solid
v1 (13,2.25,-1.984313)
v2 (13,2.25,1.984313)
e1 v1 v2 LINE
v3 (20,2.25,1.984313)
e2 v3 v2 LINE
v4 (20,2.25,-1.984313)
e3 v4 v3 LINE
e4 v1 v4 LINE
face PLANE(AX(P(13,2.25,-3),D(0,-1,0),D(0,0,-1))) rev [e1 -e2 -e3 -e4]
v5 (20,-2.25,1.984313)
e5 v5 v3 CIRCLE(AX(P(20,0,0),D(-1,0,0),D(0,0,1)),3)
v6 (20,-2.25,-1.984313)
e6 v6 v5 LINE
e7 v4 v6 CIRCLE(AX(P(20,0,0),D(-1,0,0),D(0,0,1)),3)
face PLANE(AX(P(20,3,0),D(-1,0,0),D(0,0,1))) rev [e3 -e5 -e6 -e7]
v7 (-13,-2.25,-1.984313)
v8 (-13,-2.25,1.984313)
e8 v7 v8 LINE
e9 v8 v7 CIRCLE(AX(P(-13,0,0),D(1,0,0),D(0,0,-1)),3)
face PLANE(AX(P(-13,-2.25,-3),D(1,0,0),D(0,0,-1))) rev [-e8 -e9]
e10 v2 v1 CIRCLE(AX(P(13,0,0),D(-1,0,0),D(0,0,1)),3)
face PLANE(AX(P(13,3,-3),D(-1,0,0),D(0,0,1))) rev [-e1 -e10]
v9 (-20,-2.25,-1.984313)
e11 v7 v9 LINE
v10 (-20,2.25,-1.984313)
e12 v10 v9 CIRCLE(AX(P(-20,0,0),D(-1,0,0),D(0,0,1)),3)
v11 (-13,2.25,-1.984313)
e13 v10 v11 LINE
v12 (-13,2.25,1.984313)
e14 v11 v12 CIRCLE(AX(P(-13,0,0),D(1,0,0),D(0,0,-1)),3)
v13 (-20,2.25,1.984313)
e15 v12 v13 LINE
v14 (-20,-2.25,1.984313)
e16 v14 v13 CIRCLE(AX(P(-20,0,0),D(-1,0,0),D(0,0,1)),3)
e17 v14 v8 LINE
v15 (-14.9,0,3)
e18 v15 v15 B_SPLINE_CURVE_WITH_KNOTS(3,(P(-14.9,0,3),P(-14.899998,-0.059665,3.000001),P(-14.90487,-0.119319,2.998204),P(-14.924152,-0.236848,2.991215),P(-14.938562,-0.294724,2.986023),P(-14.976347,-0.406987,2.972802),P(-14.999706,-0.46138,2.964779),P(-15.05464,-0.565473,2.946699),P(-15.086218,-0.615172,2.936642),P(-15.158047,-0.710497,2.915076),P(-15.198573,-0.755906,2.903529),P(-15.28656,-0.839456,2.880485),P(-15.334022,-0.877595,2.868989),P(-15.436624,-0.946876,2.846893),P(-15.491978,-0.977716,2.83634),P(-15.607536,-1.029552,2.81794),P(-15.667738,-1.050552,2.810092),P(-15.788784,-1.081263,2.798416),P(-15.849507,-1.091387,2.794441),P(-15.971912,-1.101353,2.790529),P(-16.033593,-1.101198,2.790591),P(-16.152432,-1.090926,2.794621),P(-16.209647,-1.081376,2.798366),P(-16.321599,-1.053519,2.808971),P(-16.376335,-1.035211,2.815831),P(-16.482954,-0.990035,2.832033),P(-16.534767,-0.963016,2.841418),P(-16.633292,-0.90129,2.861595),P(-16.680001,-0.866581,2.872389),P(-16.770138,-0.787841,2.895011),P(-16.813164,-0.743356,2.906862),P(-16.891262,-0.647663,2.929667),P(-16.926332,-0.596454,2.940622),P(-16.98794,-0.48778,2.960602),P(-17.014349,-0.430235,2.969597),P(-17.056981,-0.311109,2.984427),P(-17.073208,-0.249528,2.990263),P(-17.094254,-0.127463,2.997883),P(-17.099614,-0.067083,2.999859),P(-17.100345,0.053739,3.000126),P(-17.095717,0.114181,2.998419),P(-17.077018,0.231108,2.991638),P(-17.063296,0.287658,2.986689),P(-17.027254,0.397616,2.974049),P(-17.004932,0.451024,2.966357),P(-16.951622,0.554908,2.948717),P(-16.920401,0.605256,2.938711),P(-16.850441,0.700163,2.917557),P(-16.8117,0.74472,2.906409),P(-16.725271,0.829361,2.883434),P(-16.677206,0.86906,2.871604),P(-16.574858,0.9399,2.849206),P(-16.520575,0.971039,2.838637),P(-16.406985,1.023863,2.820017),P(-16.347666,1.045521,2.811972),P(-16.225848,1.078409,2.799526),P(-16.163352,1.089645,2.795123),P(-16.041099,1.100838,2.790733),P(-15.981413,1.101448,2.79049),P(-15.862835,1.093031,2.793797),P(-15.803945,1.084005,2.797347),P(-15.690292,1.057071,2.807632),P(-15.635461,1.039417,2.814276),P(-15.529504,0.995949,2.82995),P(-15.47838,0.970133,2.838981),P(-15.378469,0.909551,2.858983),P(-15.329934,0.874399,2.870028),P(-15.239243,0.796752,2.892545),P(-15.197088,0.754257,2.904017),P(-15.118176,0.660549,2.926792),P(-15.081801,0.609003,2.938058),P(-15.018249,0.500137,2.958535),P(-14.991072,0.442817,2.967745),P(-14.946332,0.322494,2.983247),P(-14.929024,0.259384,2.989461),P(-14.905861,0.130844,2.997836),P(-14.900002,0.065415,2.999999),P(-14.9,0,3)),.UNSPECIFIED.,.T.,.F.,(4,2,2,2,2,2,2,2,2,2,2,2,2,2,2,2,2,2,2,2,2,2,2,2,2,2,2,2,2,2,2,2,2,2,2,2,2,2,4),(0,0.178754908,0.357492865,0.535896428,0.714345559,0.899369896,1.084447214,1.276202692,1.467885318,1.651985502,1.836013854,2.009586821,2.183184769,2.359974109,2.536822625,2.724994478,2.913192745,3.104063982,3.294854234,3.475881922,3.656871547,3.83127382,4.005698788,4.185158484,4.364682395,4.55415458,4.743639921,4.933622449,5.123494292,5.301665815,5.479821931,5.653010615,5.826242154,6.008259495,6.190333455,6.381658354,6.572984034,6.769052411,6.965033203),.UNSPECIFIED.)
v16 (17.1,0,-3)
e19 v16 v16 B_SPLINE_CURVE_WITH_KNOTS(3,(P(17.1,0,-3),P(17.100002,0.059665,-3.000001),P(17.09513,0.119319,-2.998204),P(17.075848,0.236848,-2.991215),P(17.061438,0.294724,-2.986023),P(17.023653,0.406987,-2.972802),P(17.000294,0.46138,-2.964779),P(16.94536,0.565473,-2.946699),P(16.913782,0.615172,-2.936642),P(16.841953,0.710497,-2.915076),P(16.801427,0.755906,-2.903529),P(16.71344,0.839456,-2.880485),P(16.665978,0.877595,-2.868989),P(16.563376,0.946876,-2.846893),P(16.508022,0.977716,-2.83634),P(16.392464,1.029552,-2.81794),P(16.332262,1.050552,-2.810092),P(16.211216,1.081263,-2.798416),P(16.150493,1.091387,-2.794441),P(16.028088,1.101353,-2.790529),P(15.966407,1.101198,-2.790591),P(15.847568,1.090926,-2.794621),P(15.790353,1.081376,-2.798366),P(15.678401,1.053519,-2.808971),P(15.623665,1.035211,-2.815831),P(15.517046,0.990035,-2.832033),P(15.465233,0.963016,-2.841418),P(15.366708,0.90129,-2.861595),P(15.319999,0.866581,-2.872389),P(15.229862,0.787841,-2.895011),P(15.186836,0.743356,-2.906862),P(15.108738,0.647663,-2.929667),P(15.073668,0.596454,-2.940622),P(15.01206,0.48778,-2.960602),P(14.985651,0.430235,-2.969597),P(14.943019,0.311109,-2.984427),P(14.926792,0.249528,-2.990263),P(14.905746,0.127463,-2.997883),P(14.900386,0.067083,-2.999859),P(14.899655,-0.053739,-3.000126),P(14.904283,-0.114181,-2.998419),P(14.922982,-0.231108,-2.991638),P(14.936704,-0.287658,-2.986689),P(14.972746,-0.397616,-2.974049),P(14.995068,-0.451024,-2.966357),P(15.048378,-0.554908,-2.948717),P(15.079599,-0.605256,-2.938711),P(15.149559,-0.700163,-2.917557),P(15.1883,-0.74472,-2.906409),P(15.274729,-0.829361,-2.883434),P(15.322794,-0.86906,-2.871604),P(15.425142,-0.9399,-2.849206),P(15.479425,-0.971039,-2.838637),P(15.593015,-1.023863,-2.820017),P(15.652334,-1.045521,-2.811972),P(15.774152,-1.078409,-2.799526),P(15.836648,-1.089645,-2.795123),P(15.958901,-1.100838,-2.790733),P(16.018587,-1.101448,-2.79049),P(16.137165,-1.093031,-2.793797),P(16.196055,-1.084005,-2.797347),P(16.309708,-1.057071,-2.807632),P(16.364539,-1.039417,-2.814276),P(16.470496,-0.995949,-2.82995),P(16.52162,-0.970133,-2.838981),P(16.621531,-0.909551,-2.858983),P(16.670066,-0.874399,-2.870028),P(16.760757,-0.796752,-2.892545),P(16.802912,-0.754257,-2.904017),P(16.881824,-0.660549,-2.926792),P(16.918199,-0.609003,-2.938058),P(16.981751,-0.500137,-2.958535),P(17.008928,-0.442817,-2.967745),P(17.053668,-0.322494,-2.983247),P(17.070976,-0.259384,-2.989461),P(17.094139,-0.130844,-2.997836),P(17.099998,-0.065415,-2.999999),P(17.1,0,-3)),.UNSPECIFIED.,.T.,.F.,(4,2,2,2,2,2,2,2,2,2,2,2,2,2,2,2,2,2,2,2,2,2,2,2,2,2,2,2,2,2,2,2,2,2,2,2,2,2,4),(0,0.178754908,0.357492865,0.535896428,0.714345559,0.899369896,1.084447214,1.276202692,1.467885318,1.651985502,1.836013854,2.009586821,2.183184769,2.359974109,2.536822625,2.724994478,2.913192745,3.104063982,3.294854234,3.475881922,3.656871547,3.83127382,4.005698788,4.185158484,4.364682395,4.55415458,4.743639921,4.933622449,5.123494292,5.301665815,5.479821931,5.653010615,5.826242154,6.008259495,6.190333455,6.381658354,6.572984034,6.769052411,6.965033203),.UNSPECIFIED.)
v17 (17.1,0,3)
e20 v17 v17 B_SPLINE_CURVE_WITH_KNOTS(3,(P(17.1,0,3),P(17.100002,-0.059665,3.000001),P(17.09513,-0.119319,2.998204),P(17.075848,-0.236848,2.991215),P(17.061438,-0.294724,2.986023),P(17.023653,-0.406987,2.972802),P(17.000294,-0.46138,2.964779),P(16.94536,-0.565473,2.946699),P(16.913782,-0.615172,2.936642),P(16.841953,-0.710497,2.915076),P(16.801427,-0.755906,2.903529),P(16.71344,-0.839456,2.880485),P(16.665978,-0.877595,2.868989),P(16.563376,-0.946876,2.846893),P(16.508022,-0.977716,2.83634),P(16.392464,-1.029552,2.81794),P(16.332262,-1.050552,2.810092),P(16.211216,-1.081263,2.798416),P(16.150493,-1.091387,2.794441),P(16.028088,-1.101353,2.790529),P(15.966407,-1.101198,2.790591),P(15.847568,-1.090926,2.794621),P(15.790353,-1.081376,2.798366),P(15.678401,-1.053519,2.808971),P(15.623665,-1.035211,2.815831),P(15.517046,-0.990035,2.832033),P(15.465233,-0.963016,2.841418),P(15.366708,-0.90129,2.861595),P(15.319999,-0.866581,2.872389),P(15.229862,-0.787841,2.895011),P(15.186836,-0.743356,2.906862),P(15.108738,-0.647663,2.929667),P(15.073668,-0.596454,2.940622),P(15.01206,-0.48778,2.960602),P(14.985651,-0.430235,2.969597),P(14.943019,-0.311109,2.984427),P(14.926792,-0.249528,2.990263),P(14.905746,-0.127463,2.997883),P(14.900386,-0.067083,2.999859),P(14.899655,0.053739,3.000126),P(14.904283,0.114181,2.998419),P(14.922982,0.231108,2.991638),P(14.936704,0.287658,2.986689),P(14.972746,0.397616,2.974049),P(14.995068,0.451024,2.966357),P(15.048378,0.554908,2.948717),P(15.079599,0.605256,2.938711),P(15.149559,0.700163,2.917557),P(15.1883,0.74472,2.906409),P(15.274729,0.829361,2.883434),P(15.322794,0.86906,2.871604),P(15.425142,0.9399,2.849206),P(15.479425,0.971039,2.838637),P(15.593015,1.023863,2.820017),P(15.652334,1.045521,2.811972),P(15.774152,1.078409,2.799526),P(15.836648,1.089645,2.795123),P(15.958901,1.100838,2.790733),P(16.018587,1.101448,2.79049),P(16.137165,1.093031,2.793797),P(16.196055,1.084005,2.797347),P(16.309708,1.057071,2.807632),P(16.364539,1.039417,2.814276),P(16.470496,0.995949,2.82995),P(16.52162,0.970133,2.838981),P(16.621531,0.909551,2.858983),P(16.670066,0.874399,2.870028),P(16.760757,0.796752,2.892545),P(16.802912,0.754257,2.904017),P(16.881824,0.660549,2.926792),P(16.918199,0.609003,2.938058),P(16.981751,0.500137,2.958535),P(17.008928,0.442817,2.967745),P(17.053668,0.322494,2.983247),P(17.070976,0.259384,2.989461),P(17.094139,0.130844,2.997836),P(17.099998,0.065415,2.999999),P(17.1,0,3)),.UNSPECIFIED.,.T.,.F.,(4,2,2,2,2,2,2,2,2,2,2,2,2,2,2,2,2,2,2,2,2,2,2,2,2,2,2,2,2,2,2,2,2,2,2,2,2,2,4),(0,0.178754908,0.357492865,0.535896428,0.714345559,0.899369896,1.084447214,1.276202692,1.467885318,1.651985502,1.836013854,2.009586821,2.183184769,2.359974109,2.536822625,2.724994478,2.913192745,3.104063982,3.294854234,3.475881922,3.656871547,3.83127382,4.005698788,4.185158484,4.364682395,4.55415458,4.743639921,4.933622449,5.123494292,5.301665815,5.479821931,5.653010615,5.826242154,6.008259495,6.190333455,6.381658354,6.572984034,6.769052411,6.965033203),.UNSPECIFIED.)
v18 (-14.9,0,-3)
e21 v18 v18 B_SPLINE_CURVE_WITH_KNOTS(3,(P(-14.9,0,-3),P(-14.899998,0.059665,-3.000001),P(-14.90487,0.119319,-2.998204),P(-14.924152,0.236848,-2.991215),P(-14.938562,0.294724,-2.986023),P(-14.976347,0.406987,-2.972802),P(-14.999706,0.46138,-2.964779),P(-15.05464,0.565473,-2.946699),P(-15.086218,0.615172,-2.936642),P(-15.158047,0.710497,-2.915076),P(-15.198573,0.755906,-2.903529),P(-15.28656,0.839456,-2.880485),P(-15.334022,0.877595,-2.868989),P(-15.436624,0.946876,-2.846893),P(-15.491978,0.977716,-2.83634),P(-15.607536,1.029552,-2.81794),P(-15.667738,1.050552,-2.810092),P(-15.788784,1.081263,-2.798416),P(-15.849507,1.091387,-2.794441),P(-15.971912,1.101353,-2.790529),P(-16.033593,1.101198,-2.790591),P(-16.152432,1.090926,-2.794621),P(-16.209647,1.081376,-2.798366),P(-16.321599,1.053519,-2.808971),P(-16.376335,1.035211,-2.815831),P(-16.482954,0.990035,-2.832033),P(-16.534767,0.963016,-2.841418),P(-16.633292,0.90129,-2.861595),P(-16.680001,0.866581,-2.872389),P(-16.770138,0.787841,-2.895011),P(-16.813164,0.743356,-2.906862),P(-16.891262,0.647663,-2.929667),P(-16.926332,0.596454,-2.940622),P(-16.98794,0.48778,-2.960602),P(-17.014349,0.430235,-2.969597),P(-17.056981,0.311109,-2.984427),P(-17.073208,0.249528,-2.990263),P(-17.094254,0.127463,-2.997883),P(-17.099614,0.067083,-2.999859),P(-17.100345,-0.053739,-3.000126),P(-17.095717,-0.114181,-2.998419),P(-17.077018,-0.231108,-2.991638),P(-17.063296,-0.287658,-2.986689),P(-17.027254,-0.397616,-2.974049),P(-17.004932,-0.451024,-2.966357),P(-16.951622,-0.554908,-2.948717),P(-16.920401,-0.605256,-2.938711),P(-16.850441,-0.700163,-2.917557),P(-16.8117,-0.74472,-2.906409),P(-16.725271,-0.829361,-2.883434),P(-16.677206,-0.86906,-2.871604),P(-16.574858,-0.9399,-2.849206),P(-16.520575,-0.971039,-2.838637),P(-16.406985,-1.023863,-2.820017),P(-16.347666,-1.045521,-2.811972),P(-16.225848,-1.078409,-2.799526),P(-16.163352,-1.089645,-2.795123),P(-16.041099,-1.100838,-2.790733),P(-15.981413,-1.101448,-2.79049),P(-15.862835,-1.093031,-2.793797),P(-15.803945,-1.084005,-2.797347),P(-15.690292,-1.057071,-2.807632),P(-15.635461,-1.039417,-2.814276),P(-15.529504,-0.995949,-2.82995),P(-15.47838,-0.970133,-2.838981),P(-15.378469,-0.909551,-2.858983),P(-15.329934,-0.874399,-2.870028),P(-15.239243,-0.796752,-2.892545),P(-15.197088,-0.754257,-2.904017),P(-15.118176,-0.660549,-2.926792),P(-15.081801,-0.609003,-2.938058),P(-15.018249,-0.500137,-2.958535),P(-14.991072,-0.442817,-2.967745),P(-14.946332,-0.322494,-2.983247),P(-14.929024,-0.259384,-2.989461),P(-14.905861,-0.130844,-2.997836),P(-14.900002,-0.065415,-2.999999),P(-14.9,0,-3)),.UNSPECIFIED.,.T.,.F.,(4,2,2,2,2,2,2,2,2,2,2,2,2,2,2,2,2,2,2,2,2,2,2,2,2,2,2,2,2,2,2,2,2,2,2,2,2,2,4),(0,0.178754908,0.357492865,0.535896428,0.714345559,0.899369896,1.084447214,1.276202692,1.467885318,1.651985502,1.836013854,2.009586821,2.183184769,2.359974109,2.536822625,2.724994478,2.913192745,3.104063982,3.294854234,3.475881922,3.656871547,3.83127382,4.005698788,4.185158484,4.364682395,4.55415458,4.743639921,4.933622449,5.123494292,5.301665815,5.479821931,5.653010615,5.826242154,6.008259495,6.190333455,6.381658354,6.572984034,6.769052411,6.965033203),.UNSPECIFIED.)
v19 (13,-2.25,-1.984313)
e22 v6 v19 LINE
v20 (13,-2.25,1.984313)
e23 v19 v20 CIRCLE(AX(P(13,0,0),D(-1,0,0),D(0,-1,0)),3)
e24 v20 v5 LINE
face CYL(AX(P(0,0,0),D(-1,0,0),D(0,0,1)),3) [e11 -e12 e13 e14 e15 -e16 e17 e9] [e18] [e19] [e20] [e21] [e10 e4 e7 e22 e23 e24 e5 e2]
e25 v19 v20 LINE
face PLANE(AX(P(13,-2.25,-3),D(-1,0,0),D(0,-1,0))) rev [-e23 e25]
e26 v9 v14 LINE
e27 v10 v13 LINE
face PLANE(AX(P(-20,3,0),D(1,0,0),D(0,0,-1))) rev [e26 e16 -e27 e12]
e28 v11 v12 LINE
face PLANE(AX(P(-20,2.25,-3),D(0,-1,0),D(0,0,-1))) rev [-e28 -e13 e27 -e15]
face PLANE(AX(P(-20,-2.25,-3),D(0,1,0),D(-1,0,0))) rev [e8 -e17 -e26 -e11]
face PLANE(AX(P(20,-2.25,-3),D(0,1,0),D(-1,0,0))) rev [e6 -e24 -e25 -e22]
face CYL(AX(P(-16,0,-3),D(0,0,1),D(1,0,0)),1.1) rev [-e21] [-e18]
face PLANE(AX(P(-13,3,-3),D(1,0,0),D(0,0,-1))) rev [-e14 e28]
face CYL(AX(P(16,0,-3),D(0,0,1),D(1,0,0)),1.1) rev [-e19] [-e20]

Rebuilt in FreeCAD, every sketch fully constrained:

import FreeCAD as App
import Part
import Sketcher

V = App.Vector


def add_polygon(sketch, points):
    """Adds a closed chain of lines whose ends are joined by coincident constraints."""
    first, n = sketch.GeometryCount, len(points)
    for a, b in zip(points, points[1:] + points[:1]):
        sketch.addGeometry(Part.LineSegment(App.Vector(*a, 0), App.Vector(*b, 0)), False)
    for i in range(n):
        sketch.addConstraint(Sketcher.Constraint("Coincident", first + i, 2, first + (i + 1) % n, 1))

doc = App.newDocument("Part")
params = doc.addObject("Spreadsheet::Sheet", "Params")
for row, (alias, value) in enumerate([
    ("sketch1_width", "40 mm"),
    ("sketch1_height", "3 mm"),
    ("revolution_angle", "360 deg"),
    ("sketch2_width", "7 mm"),
    ("sketch2_height", "0.75 mm"),
    ("sketch3_diameter", "2.2 mm"),
], start=1):
    params.set(f"A{row}", alias)
    params.set(f"B{row}", "=" + value)
    params.setAlias(f"B{row}", alias)

body = doc.addObject("PartDesign::Body", "Body")

# Sketch on XY plane
sketch1 = body.newObject("Sketcher::SketchObject", "Sketch")
sketch1.AttachmentSupport = (doc.getObject("XY_Plane"), [""])
sketch1.MapMode = "FlatFace"
add_polygon(sketch1, [(-20, 3), (-20, 0), (20, 0), (20, 3)])  # lines 0-3
sketch1.addConstraint(Sketcher.Constraint("Vertical", 0))
sketch1.addConstraint(Sketcher.Constraint("Horizontal", 1))
sketch1.addConstraint(Sketcher.Constraint("Vertical", 2))
sketch1.addConstraint(Sketcher.Constraint("Horizontal", 3))
sketch1.addConstraint(Sketcher.Constraint("Symmetric", 0, 2, 1, 2, -1, 1))
sketch1.addConstraint(Sketcher.Constraint("DistanceX", 1, 1, 1, 2, 40.0))
sketch1.addConstraint(Sketcher.Constraint("DistanceY", 0, 2, 0, 1, 3.0))
sketch1.setExpression("Constraints[9]", "Params.sketch1_width")
sketch1.setExpression("Constraints[10]", "Params.sketch1_height")
revolution = body.newObject("PartDesign::Revolution", "Revolution")
revolution.Profile = sketch1
revolution.ReferenceAxis = (sketch1, ["H_Axis"])
revolution.setExpression("Angle", "Params.revolution_angle")

# Sketch on XY plane
sketch2 = body.newObject("Sketcher::SketchObject", "Sketch001")
sketch2.AttachmentSupport = (doc.getObject("XY_Plane"), [""])
sketch2.MapMode = "FlatFace"
add_polygon(sketch2, [(-20, 3), (-20, 2.2), (-13, 2.2), (-13, 3)])  # lines 0-3
add_polygon(sketch2, [(-20, -2.2), (-20, -3), (-13, -3), (-13, -2.2)])  # lines 4-7
add_polygon(sketch2, [(13, 3), (13, 2.2), (20, 2.2), (20, 3)])  # lines 8-11
add_polygon(sketch2, [(13, -2.2), (13, -3), (20, -3), (20, -2.2)])  # lines 12-15
sketch2.addConstraint(Sketcher.Constraint("Vertical", 0))
sketch2.addConstraint(Sketcher.Constraint("Horizontal", 1))
sketch2.addConstraint(Sketcher.Constraint("Vertical", 2))
sketch2.addConstraint(Sketcher.Constraint("Horizontal", 3))
sketch2.addConstraint(Sketcher.Constraint("Vertical", 4))
sketch2.addConstraint(Sketcher.Constraint("Horizontal", 5))
sketch2.addConstraint(Sketcher.Constraint("Vertical", 6))
sketch2.addConstraint(Sketcher.Constraint("Horizontal", 7))
sketch2.addConstraint(Sketcher.Constraint("Vertical", 8))
sketch2.addConstraint(Sketcher.Constraint("Horizontal", 9))
sketch2.addConstraint(Sketcher.Constraint("Vertical", 10))
sketch2.addConstraint(Sketcher.Constraint("Horizontal", 11))
sketch2.addConstraint(Sketcher.Constraint("Vertical", 12))
sketch2.addConstraint(Sketcher.Constraint("Horizontal", 13))
sketch2.addConstraint(Sketcher.Constraint("Vertical", 14))
sketch2.addConstraint(Sketcher.Constraint("Horizontal", 15))
sketch2.addConstraint(Sketcher.Constraint("Symmetric", 6, 2, 8, 2, -1, 1))
sketch2.addConstraint(Sketcher.Constraint("Symmetric", 4, 2, 10, 2, -1, 1))
sketch2.addConstraint(Sketcher.Constraint("Symmetric", 2, 2, 12, 2, -1, 1))
sketch2.addConstraint(Sketcher.Constraint("Symmetric", 0, 2, 14, 2, -1, 1))
sketch2.addConstraint(Sketcher.Constraint("Symmetric", 1, 2, 8, 2, -2))
sketch2.addConstraint(Sketcher.Constraint("Symmetric", 3, 2, 10, 2, -2))
sketch2.addConstraint(Sketcher.Constraint("DistanceX", 1, 1, 1, 2, 7.0))
sketch2.addConstraint(Sketcher.Constraint("DistanceX", 0, 2, -1, 1, 20.0))
sketch2.addConstraint(Sketcher.Constraint("DistanceY", -1, 1, 2, 2, 3.0))
sketch2.addConstraint(Sketcher.Constraint("DistanceY", 0, 2, 0, 1, 0.75))
sketch2.setExpression("Constraints[38]", "Params.sketch2_width")
sketch2.setExpression("Constraints[41]", "Params.sketch2_height")
pocket1 = body.newObject("PartDesign::Pocket", "Pocket")
pocket1.Profile = sketch2
pocket1.Type = "ThroughAll"
pocket1.Midplane = True

# Sketch on XY plane
sketch3 = body.newObject("Sketcher::SketchObject", "Sketch002")
sketch3.AttachmentSupport = (doc.getObject("XY_Plane"), [""])
sketch3.MapMode = "FlatFace"
sketch3.addGeometry(Part.Circle(V(-16, 0, 0), V(0, 0, 1), 1.1), False)
sketch3.addGeometry(Part.Circle(V(16, 0, 0), V(0, 0, 1), 1.1), False)
sketch3.addConstraint(Sketcher.Constraint("Equal", 0, 1))
sketch3.addConstraint(Sketcher.Constraint("Symmetric", 0, 3, 1, 3, -1, 1))
sketch3.addConstraint(Sketcher.Constraint("PointOnObject", 0, 3, -1))
sketch3.addConstraint(Sketcher.Constraint("Diameter", 0, 2.2))
sketch3.addConstraint(Sketcher.Constraint("DistanceX", 0, 3, -1, 1, 16.0))
sketch3.setExpression("Constraints[3]", "Params.sketch3_diameter")
pocket2 = body.newObject("PartDesign::Pocket", "Pocket001")
pocket2.Profile = sketch3
pocket2.Type = "ThroughAll"
pocket2.Midplane = True

doc.recompute()
